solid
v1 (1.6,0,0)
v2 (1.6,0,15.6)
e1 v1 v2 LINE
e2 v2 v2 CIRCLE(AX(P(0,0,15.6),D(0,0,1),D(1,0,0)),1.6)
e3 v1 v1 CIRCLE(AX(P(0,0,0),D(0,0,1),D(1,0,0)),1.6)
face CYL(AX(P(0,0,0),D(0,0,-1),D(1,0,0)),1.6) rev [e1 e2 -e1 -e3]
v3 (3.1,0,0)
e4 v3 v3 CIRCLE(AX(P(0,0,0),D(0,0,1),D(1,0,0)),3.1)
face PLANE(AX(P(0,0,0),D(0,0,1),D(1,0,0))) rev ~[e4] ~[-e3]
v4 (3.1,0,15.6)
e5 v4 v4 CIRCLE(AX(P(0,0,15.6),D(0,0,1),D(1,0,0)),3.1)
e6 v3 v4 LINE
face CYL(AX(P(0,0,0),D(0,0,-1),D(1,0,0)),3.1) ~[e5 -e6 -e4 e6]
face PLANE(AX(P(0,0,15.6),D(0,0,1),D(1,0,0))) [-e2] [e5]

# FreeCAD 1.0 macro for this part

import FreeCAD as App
import Part
import Sketcher

V = App.Vector
Q = App.Units.Quantity

doc = App.newDocument("Part")
params = doc.addObject("Spreadsheet::Sheet", "Params")
for row, (alias, value) in enumerate([
    ("sketch1_diameter", "6.2 mm"),
    ("sketch1_diameter2", "3.2 mm"),
    ("pad1_length", "15.6 mm"),
], start=1):
    params.set(f"A{row}", alias)
    params.set(f"B{row}", "=" + value)
    params.setAlias(f"B{row}", alias)

body = doc.addObject("PartDesign::Body", "Body")

# Sketch on XY plane
sketch1 = body.newObject("Sketcher::SketchObject", "Sketch")
sketch1.AttachmentSupport = (doc.getObject("XY_Plane"), [""])
sketch1.MapMode = "FlatFace"
sketch1.addGeometry([
    Part.Circle(V(0, 0, 0), V(0, 0, 1), 3.1),
    Part.Circle(V(0, 0, 0), V(0, 0, 1), 1.6),
], False)
sketch1.addConstraint([
    Sketcher.Constraint("Coincident", 0, 3, -1, 1),
    Sketcher.Constraint("Coincident", 1, 3, -1, 1),
    Sketcher.Constraint("Diameter", 0, Q("6.2 mm")),
    Sketcher.Constraint("Diameter", 1, Q("3.2 mm")),
])
sketch1.setExpression("Constraints[2]", "Params.sketch1_diameter")
sketch1.setExpression("Constraints[3]", "Params.sketch1_diameter2")
pad1 = body.newObject("PartDesign::Pad", "Pad")
pad1.Profile = sketch1
pad1.setExpression("Length", "Params.pad1_length")

doc.recompute()
